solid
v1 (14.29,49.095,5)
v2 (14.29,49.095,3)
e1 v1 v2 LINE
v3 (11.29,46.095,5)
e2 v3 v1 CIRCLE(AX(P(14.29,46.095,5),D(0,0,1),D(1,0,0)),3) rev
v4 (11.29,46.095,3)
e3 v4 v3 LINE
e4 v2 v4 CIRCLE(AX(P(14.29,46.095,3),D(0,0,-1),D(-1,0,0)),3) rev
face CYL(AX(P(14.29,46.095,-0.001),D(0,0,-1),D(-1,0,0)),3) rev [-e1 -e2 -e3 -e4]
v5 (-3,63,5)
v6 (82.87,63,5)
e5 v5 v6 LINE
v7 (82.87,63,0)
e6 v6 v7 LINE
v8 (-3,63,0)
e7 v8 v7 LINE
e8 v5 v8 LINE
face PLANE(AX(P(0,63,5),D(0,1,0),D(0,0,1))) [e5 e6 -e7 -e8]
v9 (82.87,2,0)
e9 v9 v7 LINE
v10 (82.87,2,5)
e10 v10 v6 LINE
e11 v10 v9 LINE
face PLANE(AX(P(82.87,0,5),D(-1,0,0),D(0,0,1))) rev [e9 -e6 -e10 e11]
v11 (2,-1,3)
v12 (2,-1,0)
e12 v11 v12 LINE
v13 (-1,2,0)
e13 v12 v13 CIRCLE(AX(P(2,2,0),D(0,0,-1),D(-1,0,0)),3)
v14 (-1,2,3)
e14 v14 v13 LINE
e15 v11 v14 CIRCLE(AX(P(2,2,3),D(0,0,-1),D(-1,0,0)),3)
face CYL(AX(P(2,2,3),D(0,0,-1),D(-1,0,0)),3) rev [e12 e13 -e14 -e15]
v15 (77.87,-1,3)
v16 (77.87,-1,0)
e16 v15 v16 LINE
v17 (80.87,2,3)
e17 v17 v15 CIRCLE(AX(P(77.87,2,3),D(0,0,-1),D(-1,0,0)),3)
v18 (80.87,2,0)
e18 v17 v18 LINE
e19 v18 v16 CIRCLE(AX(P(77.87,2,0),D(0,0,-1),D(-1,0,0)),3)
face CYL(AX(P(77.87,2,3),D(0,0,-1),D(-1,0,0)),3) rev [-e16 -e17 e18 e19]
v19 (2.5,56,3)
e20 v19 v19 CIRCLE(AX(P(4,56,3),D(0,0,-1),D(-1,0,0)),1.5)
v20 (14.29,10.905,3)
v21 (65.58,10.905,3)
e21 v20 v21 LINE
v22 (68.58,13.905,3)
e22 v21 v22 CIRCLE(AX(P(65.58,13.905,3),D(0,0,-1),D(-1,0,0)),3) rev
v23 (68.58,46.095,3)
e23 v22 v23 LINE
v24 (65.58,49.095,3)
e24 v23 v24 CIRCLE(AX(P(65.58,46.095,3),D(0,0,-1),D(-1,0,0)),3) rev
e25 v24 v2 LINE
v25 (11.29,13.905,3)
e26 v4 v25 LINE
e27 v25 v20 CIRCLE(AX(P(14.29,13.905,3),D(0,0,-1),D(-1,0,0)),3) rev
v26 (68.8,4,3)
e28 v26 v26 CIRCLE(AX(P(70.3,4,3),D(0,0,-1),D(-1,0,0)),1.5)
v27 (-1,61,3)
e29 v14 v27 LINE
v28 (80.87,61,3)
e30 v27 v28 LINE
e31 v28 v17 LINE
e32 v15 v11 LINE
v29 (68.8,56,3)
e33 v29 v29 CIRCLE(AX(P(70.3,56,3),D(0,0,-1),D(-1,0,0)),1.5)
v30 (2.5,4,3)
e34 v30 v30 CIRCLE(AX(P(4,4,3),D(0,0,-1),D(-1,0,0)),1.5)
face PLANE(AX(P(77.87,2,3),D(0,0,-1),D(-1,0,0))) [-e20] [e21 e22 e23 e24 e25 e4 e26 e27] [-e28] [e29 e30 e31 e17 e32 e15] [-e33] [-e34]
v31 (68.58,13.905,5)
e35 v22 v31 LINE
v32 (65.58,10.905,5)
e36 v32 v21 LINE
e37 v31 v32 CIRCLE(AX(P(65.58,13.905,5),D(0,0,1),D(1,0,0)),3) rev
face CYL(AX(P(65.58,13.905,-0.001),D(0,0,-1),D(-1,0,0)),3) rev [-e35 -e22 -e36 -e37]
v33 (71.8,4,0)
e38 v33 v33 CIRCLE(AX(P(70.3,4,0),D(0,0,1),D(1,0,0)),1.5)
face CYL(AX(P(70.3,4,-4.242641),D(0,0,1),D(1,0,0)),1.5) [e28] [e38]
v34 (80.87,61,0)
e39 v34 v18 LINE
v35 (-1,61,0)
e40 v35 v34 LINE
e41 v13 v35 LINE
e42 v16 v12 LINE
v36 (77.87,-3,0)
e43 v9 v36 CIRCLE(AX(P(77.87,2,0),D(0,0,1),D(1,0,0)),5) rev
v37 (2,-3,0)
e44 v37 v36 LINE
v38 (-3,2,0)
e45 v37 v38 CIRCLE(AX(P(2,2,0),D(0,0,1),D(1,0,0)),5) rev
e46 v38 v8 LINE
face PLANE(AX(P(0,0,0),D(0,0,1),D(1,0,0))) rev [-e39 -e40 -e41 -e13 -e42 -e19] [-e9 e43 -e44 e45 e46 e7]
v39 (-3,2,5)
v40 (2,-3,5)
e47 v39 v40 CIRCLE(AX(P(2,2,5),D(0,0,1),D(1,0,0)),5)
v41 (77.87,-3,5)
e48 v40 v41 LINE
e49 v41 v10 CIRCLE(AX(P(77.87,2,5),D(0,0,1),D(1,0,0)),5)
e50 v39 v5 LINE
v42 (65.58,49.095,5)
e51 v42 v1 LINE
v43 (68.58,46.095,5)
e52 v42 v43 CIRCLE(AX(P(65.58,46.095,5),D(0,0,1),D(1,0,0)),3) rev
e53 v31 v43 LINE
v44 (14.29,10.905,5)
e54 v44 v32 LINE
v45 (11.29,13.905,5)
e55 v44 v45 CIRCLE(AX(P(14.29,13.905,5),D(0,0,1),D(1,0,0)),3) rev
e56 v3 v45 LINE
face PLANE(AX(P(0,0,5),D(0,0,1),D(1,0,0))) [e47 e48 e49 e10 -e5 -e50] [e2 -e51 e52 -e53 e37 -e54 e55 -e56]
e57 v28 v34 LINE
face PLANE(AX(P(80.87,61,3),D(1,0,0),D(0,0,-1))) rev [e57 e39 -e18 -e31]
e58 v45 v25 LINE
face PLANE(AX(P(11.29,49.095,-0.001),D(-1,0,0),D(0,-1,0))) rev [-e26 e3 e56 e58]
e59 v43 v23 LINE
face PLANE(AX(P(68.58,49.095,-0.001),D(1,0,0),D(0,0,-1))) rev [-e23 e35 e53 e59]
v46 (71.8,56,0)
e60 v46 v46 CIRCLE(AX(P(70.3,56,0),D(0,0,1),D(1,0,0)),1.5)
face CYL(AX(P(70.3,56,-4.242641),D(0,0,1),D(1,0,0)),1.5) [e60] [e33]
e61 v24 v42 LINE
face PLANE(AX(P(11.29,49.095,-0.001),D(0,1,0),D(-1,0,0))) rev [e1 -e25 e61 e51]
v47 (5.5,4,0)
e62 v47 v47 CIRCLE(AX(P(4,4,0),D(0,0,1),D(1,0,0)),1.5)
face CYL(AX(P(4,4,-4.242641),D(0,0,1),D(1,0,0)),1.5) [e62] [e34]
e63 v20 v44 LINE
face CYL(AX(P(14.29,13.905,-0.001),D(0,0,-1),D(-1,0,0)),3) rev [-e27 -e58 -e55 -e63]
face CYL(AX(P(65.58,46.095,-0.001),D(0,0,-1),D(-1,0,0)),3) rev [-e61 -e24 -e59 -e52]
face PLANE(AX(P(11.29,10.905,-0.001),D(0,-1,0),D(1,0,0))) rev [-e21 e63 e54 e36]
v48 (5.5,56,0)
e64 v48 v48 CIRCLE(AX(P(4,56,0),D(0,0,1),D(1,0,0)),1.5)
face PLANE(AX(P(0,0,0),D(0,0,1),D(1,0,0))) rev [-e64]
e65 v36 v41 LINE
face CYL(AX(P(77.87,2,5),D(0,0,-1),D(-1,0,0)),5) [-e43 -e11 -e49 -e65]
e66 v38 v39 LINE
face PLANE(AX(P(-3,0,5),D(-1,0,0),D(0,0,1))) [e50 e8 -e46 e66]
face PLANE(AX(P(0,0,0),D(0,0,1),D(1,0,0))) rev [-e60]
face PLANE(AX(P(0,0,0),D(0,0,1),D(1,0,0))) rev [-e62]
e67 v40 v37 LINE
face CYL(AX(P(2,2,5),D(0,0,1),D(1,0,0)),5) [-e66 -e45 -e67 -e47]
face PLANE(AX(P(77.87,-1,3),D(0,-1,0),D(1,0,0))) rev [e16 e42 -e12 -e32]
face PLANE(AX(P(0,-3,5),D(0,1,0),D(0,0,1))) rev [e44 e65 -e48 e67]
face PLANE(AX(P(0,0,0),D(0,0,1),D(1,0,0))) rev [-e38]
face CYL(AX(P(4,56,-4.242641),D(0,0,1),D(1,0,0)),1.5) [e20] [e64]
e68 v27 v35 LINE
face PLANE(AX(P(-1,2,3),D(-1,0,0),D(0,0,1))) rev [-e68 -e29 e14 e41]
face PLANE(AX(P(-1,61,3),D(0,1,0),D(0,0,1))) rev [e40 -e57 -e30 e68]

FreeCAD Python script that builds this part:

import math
import FreeCAD as App
import Part
import Sketcher
from FreeCAD import Vector
Q = App.Units.Quantity


def edges_at(feature, points):
    """Names of the edges that pass closest to the given points."""
    edges = feature.Shape.Edges
    near = lambda p: min(range(len(edges)), key=lambda i: edges[i].distToShape(Part.Vertex(*p))[0])
    return sorted({f"Edge{near(p) + 1}" for p in points})


def add_polygon(sketch, points):
    """Adds a closed chain of lines whose ends are joined by coincident constraints."""
    first, n = sketch.GeometryCount, len(points)
    for a, b in zip(points, points[1:] + points[:1]):
        sketch.addGeometry(Part.LineSegment(App.Vector(*a, 0), App.Vector(*b, 0)), False)
    for i in range(n):
        sketch.addConstraint(Sketcher.Constraint("Coincident", first + i, 2, first + (i + 1) % n, 1))

doc = App.newDocument("Part")
body = doc.addObject("PartDesign::Body", "Body")

# Sketch on XY plane
sketch1 = body.newObject("Sketcher::SketchObject", "Sketch")
sketch1.AttachmentSupport = (doc.getObject("XY_Plane"), [""])
sketch1.MapMode = "FlatFace"
add_polygon(sketch1, [(-3, 63), (-3, -3), (83, -3), (83, 63)])  # lines 0-3
sketch1.addConstraint(Sketcher.Constraint("Vertical", 0))
sketch1.addConstraint(Sketcher.Constraint("Horizontal", 1))
sketch1.addConstraint(Sketcher.Constraint("Vertical", 2))
sketch1.addConstraint(Sketcher.Constraint("Horizontal", 3))
sketch1.addConstraint(Sketcher.Constraint("DistanceY", 0, 2, 0, 1, Q("66 mm")))
sketch1.addConstraint(Sketcher.Constraint("DistanceX", 0, 2, -1, 1, Q("3 mm")))
sketch1.addConstraint(Sketcher.Constraint("DistanceY", 0, 2, -1, 1, Q("3 mm")))
sketch1.addConstraint(Sketcher.Constraint("DistanceX", 1, 1, 1, 2, Q("85.87 mm")))
pad1 = body.newObject("PartDesign::Pad", "Pad")
pad1.Profile = sketch1
pad1.Length = 5
doc.recompute()

fillet = body.newObject("PartDesign::Fillet", "Fillet")
fillet.Base = (pad1, edges_at(pad1, [(82.87, -3, 2.5), (-3, -3, 2.5)]))
fillet.Radius = 5

# Sketch on XY plane
sketch2 = body.newObject("Sketcher::SketchObject", "Sketch001")
sketch2.AttachmentSupport = (doc.getObject("XY_Plane"), [""])
sketch2.MapMode = "FlatFace"
sketch2.addGeometry(Part.LineSegment(Vector(80.9, 61, 0), Vector(80.9, 2, 0)), False)
sketch2.addGeometry(Part.ArcOfCircle(Part.Circle(Vector(77.9, 2, 0), Vector(0, 0, 1), 3), math.radians(-90), math.radians(0)), False)
sketch2.addGeometry(Part.LineSegment(Vector(77.9, -1, 0), Vector(2, -1, 0)), False)
sketch2.addGeometry(Part.ArcOfCircle(Part.Circle(Vector(2, 2, 0), Vector(0, 0, 1), 3), math.radians(180), math.radians(270)), False)
sketch2.addGeometry(Part.LineSegment(Vector(-1, 2, 0), Vector(-1, 61, 0)), False)
sketch2.addGeometry(Part.LineSegment(Vector(-1, 61, 0), Vector(80.9, 61, 0)), False)
sketch2.addConstraint(Sketcher.Constraint("Tangent", 0, 2, 1, 2))
sketch2.addConstraint(Sketcher.Constraint("Tangent", 1, 1, 2, 1))
sketch2.addConstraint(Sketcher.Constraint("Tangent", 2, 2, 3, 2))
sketch2.addConstraint(Sketcher.Constraint("Tangent", 3, 1, 4, 1))
sketch2.addConstraint(Sketcher.Constraint("Coincident", 4, 2, 5, 1))
sketch2.addConstraint(Sketcher.Constraint("Coincident", 5, 2, 0, 1))
sketch2.addConstraint(Sketcher.Constraint("Vertical", 0))
sketch2.addConstraint(Sketcher.Constraint("Horizontal", 2))
sketch2.addConstraint(Sketcher.Constraint("Vertical", 4))
sketch2.addConstraint(Sketcher.Constraint("Horizontal", 5))
sketch2.addConstraint(Sketcher.Constraint("Equal", 1, 3))
sketch2.addConstraint(Sketcher.Constraint("Radius", 1, Q("3 mm")))
sketch2.addConstraint(Sketcher.Constraint("DistanceY", 0, 2, 0, 1, Q("59 mm")))
sketch2.addConstraint(Sketcher.Constraint("DistanceY", -1, 1, 1, 3, Q("2 mm")))
sketch2.addConstraint(Sketcher.Constraint("DistanceX", -1, 1, 3, 3, Q("2 mm")))
sketch2.addConstraint(Sketcher.Constraint("DistanceX", 2, 2, 2, 1, Q("75.87 mm")))
pocket1 = body.newObject("PartDesign::Pocket", "Pocket")
pocket1.Profile = sketch2
pocket1.Length = 3
pocket1.Reversed = True

# Sketch on XY plane
sketch3 = body.newObject("Sketcher::SketchObject", "Sketch002")
sketch3.AttachmentSupport = (doc.getObject("XY_Plane"), [""])
sketch3.MapMode = "FlatFace"
sketch3.AttachmentOffset = App.Placement(Vector(0, 0, 5), App.Rotation())
add_polygon(sketch3, [(11, 49), (11, 11), (69, 11), (69, 49)])  # lines 0-3
sketch3.addConstraint(Sketcher.Constraint("Vertical", 0))
sketch3.addConstraint(Sketcher.Constraint("Horizontal", 1))
sketch3.addConstraint(Sketcher.Constraint("Vertical", 2))
sketch3.addConstraint(Sketcher.Constraint("Horizontal", 3))
sketch3.addConstraint(Sketcher.Constraint("DistanceX", 1, 1, 1, 2, Q("57.29 mm")))
sketch3.addConstraint(Sketcher.Constraint("DistanceY", 0, 2, 0, 1, Q("38.19 mm")))
sketch3.addConstraint(Sketcher.Constraint("DistanceX", -1, 1, 0, 2, Q("11.29 mm")))
sketch3.addConstraint(Sketcher.Constraint("DistanceY", -1, 1, 0, 2, Q("10.905 mm")))
pocket2 = body.newObject("PartDesign::Pocket", "Pocket001")
pocket2.Profile = sketch3
pocket2.Type = "UpToFirst"
doc.recompute()

fillet2 = body.newObject("PartDesign::Fillet", "Fillet001")
fillet2.Base = (pocket2, edges_at(pocket2, [
    (11.29, 10.905, 4),
    (11.29, 49.095, 4),
    (68.58, 49.095, 4),
    (68.58, 10.905, 4),
]))
fillet2.Radius = 3

# Sketch on XY plane
sketch4 = body.newObject("Sketcher::SketchObject", "Sketch003")
sketch4.AttachmentSupport = (doc.getObject("XY_Plane"), [""])
sketch4.MapMode = "FlatFace"
sketch4.AttachmentOffset = App.Placement(Vector(0, 0, 3), App.Rotation())
sketch4.addGeometry(Part.Circle(Vector(4, 4, 0), Vector(0, 0, 1), 1.5), False)
sketch4.addGeometry(Part.Circle(Vector(4, 56, 0), Vector(0, 0, 1), 1.5), False)
sketch4.addGeometry(Part.Circle(Vector(70.3, 56, 0), Vector(0, 0, 1), 1.5), False)
sketch4.addGeometry(Part.Circle(Vector(70.3, 4, 0), Vector(0, 0, 1), 1.5), False)
sketch4.addConstraint(Sketcher.Constraint("Equal", 0, 1))
sketch4.addConstraint(Sketcher.Constraint("Equal", 1, 2))
sketch4.addConstraint(Sketcher.Constraint("Equal", 2, 3))
sketch4.addConstraint(Sketcher.Constraint("Horizontal", 1, 3, 2, 3))
sketch4.addConstraint(Sketcher.Constraint("Horizontal", 0, 3, 3, 3))
sketch4.addConstraint(Sketcher.Constraint("Vertical", 0, 3, 1, 3))
sketch4.addConstraint(Sketcher.Constraint("Vertical", 2, 3, 3, 3))
sketch4.addConstraint(Sketcher.Constraint("Diameter", 0, Q("3 mm")))
sketch4.addConstraint(Sketcher.Constraint("DistanceX", -1, 1, 0, 3, Q("4 mm")))
sketch4.addConstraint(Sketcher.Constraint("DistanceY", -1, 1, 0, 3, Q("4 mm")))
sketch4.addConstraint(Sketcher.Constraint("DistanceY", -1, 1, 1, 3, Q("56 mm")))
sketch4.addConstraint(Sketcher.Constraint("DistanceX", -1, 1, 2, 3, Q("70.3 mm")))
pad2 = body.newObject("PartDesign::Pad", "Pad001")
pad2.Profile = sketch4
pad2.Length = 3
pad2.Reversed = True

doc.recompute()
